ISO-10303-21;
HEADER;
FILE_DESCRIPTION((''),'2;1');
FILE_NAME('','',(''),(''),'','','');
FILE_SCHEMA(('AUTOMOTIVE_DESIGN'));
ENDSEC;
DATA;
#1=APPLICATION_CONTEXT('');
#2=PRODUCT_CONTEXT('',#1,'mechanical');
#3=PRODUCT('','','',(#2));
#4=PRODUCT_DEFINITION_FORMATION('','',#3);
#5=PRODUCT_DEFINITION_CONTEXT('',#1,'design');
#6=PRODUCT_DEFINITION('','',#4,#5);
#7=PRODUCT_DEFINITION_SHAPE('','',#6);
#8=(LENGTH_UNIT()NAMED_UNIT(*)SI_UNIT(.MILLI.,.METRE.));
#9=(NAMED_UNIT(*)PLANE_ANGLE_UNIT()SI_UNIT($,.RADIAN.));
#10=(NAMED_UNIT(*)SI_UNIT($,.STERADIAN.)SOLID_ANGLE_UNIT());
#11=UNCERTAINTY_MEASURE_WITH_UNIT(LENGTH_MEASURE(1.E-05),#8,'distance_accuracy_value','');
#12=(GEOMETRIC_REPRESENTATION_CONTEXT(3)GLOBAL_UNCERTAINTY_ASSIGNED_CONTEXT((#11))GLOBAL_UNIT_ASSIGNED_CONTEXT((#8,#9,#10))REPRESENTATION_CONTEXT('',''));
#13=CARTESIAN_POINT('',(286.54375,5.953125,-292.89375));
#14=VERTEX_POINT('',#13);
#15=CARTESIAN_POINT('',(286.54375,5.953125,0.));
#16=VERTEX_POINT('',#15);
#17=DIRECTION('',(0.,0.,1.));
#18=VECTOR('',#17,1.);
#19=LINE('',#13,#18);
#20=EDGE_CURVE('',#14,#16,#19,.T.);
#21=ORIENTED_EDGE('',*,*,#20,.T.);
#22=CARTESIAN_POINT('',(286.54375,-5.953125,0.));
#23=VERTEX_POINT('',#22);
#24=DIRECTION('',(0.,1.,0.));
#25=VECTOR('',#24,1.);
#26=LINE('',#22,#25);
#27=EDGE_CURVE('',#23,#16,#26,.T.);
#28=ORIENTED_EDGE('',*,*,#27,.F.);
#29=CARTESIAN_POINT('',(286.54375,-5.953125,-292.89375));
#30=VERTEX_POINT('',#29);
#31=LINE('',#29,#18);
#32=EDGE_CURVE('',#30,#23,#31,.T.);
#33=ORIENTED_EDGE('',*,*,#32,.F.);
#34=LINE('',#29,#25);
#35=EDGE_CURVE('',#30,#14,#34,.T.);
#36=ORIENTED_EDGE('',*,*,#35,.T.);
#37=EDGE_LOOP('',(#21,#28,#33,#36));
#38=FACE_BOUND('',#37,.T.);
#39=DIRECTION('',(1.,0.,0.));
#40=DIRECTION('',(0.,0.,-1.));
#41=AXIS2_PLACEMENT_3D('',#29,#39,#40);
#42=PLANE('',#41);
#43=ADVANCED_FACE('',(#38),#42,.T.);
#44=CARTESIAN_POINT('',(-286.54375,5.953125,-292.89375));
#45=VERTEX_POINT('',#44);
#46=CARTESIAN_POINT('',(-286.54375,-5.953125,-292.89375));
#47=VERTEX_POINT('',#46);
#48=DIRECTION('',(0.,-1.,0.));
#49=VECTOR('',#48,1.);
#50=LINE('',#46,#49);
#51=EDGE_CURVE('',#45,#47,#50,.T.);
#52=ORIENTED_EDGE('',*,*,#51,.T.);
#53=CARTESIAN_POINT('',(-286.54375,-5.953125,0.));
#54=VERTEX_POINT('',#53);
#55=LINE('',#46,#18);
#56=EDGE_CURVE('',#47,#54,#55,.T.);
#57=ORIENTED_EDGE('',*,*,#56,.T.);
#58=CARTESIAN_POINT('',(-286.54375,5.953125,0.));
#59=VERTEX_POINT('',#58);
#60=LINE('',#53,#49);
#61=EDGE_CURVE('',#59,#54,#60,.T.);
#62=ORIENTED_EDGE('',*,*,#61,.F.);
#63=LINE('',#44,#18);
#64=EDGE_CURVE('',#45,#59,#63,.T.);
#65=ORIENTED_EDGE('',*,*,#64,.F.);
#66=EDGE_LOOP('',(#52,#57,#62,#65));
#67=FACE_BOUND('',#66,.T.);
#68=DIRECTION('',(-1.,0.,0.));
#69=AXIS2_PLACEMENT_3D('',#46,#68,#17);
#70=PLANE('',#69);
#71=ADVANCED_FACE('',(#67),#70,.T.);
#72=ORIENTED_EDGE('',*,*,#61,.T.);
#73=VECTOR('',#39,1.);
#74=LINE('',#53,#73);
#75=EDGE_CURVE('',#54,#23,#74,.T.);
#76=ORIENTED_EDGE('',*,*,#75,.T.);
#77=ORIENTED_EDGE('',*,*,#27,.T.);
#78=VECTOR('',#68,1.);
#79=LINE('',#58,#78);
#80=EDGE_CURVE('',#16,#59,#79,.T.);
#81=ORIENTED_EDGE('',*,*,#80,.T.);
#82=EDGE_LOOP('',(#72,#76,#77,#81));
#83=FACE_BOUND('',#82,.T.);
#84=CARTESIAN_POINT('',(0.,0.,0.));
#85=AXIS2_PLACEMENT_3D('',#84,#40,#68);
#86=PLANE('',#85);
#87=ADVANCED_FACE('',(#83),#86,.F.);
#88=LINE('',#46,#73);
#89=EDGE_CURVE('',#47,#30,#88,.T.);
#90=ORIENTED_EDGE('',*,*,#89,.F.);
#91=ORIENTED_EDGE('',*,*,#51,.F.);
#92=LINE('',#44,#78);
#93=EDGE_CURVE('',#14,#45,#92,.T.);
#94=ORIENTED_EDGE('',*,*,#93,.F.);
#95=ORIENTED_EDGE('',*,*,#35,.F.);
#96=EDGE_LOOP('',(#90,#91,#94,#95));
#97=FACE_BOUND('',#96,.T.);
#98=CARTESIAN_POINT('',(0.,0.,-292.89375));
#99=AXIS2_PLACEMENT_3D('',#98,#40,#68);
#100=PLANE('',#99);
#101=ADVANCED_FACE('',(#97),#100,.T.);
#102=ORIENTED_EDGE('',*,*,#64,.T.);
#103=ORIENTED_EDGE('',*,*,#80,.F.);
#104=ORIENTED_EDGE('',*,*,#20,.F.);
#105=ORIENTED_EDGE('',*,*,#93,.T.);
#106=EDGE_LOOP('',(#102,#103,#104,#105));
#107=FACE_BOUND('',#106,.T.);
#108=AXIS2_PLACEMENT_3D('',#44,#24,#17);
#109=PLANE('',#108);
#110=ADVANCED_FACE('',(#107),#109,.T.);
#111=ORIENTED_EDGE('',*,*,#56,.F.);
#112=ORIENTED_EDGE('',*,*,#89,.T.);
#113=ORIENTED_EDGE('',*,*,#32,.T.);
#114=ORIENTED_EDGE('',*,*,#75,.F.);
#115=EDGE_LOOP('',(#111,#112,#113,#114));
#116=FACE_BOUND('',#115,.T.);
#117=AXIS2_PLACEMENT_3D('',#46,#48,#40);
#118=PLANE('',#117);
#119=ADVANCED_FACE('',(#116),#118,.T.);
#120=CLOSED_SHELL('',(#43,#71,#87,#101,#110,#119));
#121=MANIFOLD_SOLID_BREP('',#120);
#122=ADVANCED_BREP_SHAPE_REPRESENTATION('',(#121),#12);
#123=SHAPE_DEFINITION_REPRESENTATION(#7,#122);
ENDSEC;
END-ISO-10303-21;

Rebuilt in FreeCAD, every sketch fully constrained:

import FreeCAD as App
import Part
import Sketcher

V = App.Vector
Q = App.Units.Quantity


def add_polygon(sketch, points):
    """Adds a closed chain of lines whose ends are joined by coincident constraints."""
    first, n = sketch.GeometryCount, len(points)
    for a, b in zip(points, points[1:] + points[:1]):
        sketch.addGeometry(Part.LineSegment(App.Vector(*a, 0), App.Vector(*b, 0)), False)
    for i in range(n):
        sketch.addConstraint(Sketcher.Constraint("Coincident", first + i, 2, first + (i + 1) % n, 1))

doc = App.newDocument("Part")
body = doc.addObject("PartDesign::Body", "Body")

# Sketch on XY plane
sketch1 = body.newObject("Sketcher::SketchObject", "Sketch")
sketch1.AttachmentSupport = (doc.getObject("XY_Plane"), [""])
sketch1.MapMode = "FlatFace"
add_polygon(sketch1, [(-287, 6), (-287, -6), (287, -6), (287, 6)])  # lines 0-3
sketch1.addConstraint([
    Sketcher.Constraint("Vertical", 0),
    Sketcher.Constraint("Horizontal", 1),
    Sketcher.Constraint("Vertical", 2),
    Sketcher.Constraint("Horizontal", 3),
    Sketcher.Constraint("Symmetric", 0, 2, 2, 2, -1, 1),
    Sketcher.Constraint("DistanceX", 1, 1, 1, 2, Q("22.5625 in")),
    Sketcher.Constraint("DistanceY", 0, 2, 0, 1, Q("0.46875 in")),
])
pad1 = body.newObject("PartDesign::Pad", "Pad")
pad1.Profile = sketch1
pad1.Length = Q("11.53125 in")
pad1.Reversed = True

doc.recompute()
